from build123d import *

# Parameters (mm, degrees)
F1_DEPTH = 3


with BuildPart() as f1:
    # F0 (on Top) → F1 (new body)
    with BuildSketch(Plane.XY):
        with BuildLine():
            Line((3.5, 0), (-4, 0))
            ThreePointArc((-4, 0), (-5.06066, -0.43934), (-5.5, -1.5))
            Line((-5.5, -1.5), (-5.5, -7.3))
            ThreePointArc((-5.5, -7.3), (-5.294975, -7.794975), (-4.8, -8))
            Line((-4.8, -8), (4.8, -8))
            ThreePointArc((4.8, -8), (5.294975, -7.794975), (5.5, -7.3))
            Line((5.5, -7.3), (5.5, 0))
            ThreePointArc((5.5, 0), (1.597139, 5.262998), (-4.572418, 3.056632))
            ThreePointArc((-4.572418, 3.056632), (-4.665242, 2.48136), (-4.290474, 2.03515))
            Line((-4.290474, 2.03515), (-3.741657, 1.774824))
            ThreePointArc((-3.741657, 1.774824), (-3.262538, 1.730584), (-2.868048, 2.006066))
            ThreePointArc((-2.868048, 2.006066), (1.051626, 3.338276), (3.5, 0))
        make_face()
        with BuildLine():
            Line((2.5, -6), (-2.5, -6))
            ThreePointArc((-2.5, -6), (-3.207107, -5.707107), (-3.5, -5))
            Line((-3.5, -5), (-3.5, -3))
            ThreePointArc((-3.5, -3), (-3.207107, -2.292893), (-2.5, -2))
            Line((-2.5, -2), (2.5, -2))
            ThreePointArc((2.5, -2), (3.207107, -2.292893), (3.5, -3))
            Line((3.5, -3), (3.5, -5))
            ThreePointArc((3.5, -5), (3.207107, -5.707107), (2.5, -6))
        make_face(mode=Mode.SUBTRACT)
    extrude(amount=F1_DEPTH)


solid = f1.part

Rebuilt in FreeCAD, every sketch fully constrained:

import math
import FreeCAD as App
import Part
import Sketcher
from FreeCAD import Vector

doc = App.newDocument("Part")
body = doc.addObject("PartDesign::Body", "Body")

sketch1 = doc.addObject("Sketcher::SketchObject", "Sketch")
body.addObject(sketch1)
sketch1.AttachmentSupport = (doc.XY_Plane, [""])
sketch1.MapMode = "FlatFace"
sketch1.addGeometry([
    Part.LineSegment(Vector(3.5, 0, 0), Vector(-4, 0, 0)),
    Part.ArcOfCircle(Part.Circle(Vector(-3.999999, -1.500001, 0), Vector(0, 0, 1), 1.500001), math.radians(90.000022), math.radians(179.999978)),
    Part.LineSegment(Vector(-5.5, -1.5, 0), Vector(-5.5, -7.3, 0)),
    Part.ArcOfCircle(Part.Circle(Vector(-4.800001, -7.300001, 0), Vector(0, 0, 1), 0.699999), math.radians(179.999929), math.radians(270.000071)),
    Part.LineSegment(Vector(-4.8, -8, 0), Vector(4.8, -8, 0)),
    Part.ArcOfCircle(Part.Circle(Vector(4.800001, -7.300001, 0), Vector(0, 0, 1), 0.699999), math.radians(-90.000071), math.radians(0.000071)),
    Part.LineSegment(Vector(5.5, -7.3, 0), Vector(5.5, 0, 0)),
    Part.ArcOfCircle(Part.Circle(Vector(0, 0, 0), Vector(0, 0, 1), 5.5), math.radians(0.000002), math.radians(146.237524)),
    Part.ArcOfCircle(Part.Circle(Vector(-3.990472, 2.667606, 0), Vector(0, 0, 1), 0.700001), math.radians(146.237615), math.radians(244.622955)),
    Part.LineSegment(Vector(-4.290474, 2.03515, 0), Vector(-3.741657, 1.774824, 0)),
    Part.ArcOfCircle(Part.Circle(Vector(-3.441657, 2.407278, 0), Vector(0, 0, 1), 0.699998), math.radians(-115.377026), math.radians(-34.970926)),
    Part.ArcOfCircle(Part.Circle(Vector(0, 0.000001, 0), Vector(0, 0, 1), 3.5), math.radians(-0.000012), math.radians(145.029015)),
    Part.ArcOfCircle(Part.Circle(Vector(2.500001, -5.000001, 0), Vector(0, 0, 1), 0.999999), math.radians(-90.000043), math.radians(0.000043)),
    Part.LineSegment(Vector(2.5, -6, 0), Vector(-2.5, -6, 0)),
    Part.ArcOfCircle(Part.Circle(Vector(-2.500001, -5.000001, 0), Vector(0, 0, 1), 0.999999), math.radians(179.999957), math.radians(270.000043)),
    Part.LineSegment(Vector(-3.5, -5, 0), Vector(-3.5, -3, 0)),
    Part.ArcOfCircle(Part.Circle(Vector(-2.500001, -2.999999, 0), Vector(0, 0, 1), 0.999999), math.radians(89.999957), math.radians(180.000043)),
    Part.LineSegment(Vector(-2.5, -2, 0), Vector(2.5, -2, 0)),
    Part.ArcOfCircle(Part.Circle(Vector(2.500001, -2.999999, 0), Vector(0, 0, 1), 0.999999), math.radians(-0.000043), math.radians(90.000043)),
    Part.LineSegment(Vector(3.5, -3, 0), Vector(3.5, -5, 0)),
], False)
sketch1.addConstraint([
    Sketcher.Constraint("Tangent", 0, 2, 1, 1),
    Sketcher.Constraint("Tangent", 1, 2, 2, 1),
    Sketcher.Constraint("Tangent", 2, 2, 3, 1),
    Sketcher.Constraint("Tangent", 3, 2, 4, 1),
    Sketcher.Constraint("Tangent", 4, 2, 5, 1),
    Sketcher.Constraint("Tangent", 5, 2, 6, 1),
    Sketcher.Constraint("Tangent", 6, 2, 7, 1),
    Sketcher.Constraint("Tangent", 7, 2, 8, 1),
    Sketcher.Constraint("Coincident", 8, 2, 9, 1),
    Sketcher.Constraint("Coincident", 9, 2, 10, 1),
    Sketcher.Constraint("Tangent", 10, 2, 11, 2),
    Sketcher.Constraint("Coincident", 11, 1, 0, 1),
    Sketcher.Constraint("Tangent", 12, 1, 13, 1),
    Sketcher.Constraint("Tangent", 13, 2, 14, 2),
    Sketcher.Constraint("Tangent", 14, 1, 15, 1),
    Sketcher.Constraint("Tangent", 15, 2, 16, 2),
    Sketcher.Constraint("Tangent", 16, 1, 17, 1),
    Sketcher.Constraint("Tangent", 17, 2, 18, 2),
    Sketcher.Constraint("Tangent", 18, 1, 19, 1),
    Sketcher.Constraint("Tangent", 19, 2, 12, 2),
    Sketcher.Constraint("Horizontal", 0),
    Sketcher.Constraint("Vertical", 2),
    Sketcher.Constraint("Horizontal", 4),
    Sketcher.Constraint("Vertical", 6),
    Sketcher.Constraint("Horizontal", 13),
    Sketcher.Constraint("Vertical", 15),
    Sketcher.Constraint("Horizontal", 17),
    Sketcher.Constraint("Vertical", 19),
    Sketcher.Constraint("Coincident", 7, 3, -1, 1),
    Sketcher.Constraint("Coincident", 11, 3, -1, 1),
    Sketcher.Constraint("Equal", 3, 5),
    Sketcher.Constraint("Equal", 5, 10),
    Sketcher.Constraint("Equal", 12, 14),
    Sketcher.Constraint("Equal", 14, 16),
    Sketcher.Constraint("Equal", 16, 18),
    Sketcher.Constraint("PointOnObject", 0, 2, -1),
    Sketcher.Constraint("Vertical", 11, 1, 18, 1),
    Sketcher.Constraint("Radius", 12, 0.999999),
    Sketcher.Constraint("Radius", 1, 1.500001),
    Sketcher.Constraint("Radius", 3, 0.699999),
    Sketcher.Constraint("Radius", 7, 5.5),
    Sketcher.Constraint("Radius", 8, 0.700001),
    Sketcher.Constraint("Radius", 11, 3.5),
    Sketcher.Constraint("DistanceX", 13, 2, 13, 1, 5.0),
    Sketcher.Constraint("DistanceY", 15, 1, 15, 2, 2.0),
    Sketcher.Constraint("DistanceX", 0, 2, 0, 1, 7.5),
    Sketcher.Constraint("DistanceY", 2, 2, 2, 1, 5.8),
    Sketcher.Constraint("DistanceY", 12, 3, -1, 1, 5.000001),
    Sketcher.Constraint("DistanceX", 8, 2, 8, 3, 0.300002),
    Sketcher.Constraint("DistanceX", 9, 2, 10, 3, 0.3),
    Sketcher.Constraint("Distance", 9, 0.607429),
    Sketcher.Constraint("DistanceX", 7, 2, -1, 1, 4.572418),
])
pad1 = doc.addObject("PartDesign::Pad", "Pad")
body.addObject(pad1)
pad1.Profile = sketch1
pad1.Length = 3

doc.recompute()
